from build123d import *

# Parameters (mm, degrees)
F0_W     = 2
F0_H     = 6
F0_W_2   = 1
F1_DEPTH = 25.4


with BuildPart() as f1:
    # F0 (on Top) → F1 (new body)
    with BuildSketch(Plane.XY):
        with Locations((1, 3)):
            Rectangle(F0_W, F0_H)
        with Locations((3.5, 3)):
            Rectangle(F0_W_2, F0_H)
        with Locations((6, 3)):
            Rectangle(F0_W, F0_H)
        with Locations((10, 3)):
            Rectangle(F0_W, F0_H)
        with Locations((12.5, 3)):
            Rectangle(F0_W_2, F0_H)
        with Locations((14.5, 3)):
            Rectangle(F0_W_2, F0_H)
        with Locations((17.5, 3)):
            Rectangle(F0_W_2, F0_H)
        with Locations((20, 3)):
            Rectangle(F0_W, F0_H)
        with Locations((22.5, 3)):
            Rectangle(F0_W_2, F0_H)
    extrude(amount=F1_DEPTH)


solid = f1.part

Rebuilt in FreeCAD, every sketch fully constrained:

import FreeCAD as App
import Part
import Sketcher
from FreeCAD import Vector

doc = App.newDocument("Part")
body = doc.addObject("PartDesign::Body", "Body")
body.AllowCompound = True

sketch1 = body.newObject("Sketcher::SketchObject", "Sketch")
sketch1.AttachmentSupport = (doc.getObject("XY_Plane"), [""])
sketch1.MapMode = "FlatFace"
sketch1.addGeometry([
    Part.LineSegment(Vector(0, 6, 0), Vector(0, 0, 0)),
    Part.LineSegment(Vector(0, 0, 0), Vector(2, 0, 0)),
    Part.LineSegment(Vector(2, 0, 0), Vector(2, 6, 0)),
    Part.LineSegment(Vector(2, 6, 0), Vector(0, 6, 0)),
    Part.LineSegment(Vector(3, 6, 0), Vector(3, 0, 0)),
    Part.LineSegment(Vector(3, 0, 0), Vector(4, 0, 0)),
    Part.LineSegment(Vector(4, 0, 0), Vector(4, 6, 0)),
    Part.LineSegment(Vector(4, 6, 0), Vector(3, 6, 0)),
    Part.LineSegment(Vector(5, 6, 0), Vector(5, 0, 0)),
    Part.LineSegment(Vector(5, 0, 0), Vector(7, 0, 0)),
    Part.LineSegment(Vector(7, 0, 0), Vector(7, 6, 0)),
    Part.LineSegment(Vector(7, 6, 0), Vector(5, 6, 0)),
    Part.LineSegment(Vector(9, 6, 0), Vector(9, 0, 0)),
    Part.LineSegment(Vector(9, 0, 0), Vector(11, 0, 0)),
    Part.LineSegment(Vector(11, 0, 0), Vector(11, 6, 0)),
    Part.LineSegment(Vector(11, 6, 0), Vector(9, 6, 0)),
    Part.LineSegment(Vector(12, 6, 0), Vector(12, 0, 0)),
    Part.LineSegment(Vector(12, 0, 0), Vector(13, 0, 0)),
    Part.LineSegment(Vector(13, 0, 0), Vector(13, 6, 0)),
    Part.LineSegment(Vector(13, 6, 0), Vector(12, 6, 0)),
    Part.LineSegment(Vector(14, 6, 0), Vector(14, 0, 0)),
    Part.LineSegment(Vector(14, 0, 0), Vector(15, 0, 0)),
    Part.LineSegment(Vector(15, 0, 0), Vector(15, 6, 0)),
    Part.LineSegment(Vector(15, 6, 0), Vector(14, 6, 0)),
    Part.LineSegment(Vector(17, 6, 0), Vector(17, 0, 0)),
    Part.LineSegment(Vector(17, 0, 0), Vector(18, 0, 0)),
    Part.LineSegment(Vector(18, 0, 0), Vector(18, 6, 0)),
    Part.LineSegment(Vector(18, 6, 0), Vector(17, 6, 0)),
    Part.LineSegment(Vector(19, 6, 0), Vector(19, 0, 0)),
    Part.LineSegment(Vector(19, 0, 0), Vector(21, 0, 0)),
    Part.LineSegment(Vector(21, 0, 0), Vector(21, 6, 0)),
    Part.LineSegment(Vector(21, 6, 0), Vector(19, 6, 0)),
    Part.LineSegment(Vector(22, 6, 0), Vector(22, 0, 0)),
    Part.LineSegment(Vector(22, 0, 0), Vector(23, 0, 0)),
    Part.LineSegment(Vector(23, 0, 0), Vector(23, 6, 0)),
    Part.LineSegment(Vector(23, 6, 0), Vector(22, 6, 0)),
], False)
sketch1.addConstraint([
    Sketcher.Constraint("Coincident", 0, 2, 1, 1),
    Sketcher.Constraint("Coincident", 1, 2, 2, 1),
    Sketcher.Constraint("Coincident", 2, 2, 3, 1),
    Sketcher.Constraint("Coincident", 3, 2, 0, 1),
    Sketcher.Constraint("Coincident", 4, 2, 5, 1),
    Sketcher.Constraint("Coincident", 5, 2, 6, 1),
    Sketcher.Constraint("Coincident", 6, 2, 7, 1),
    Sketcher.Constraint("Coincident", 7, 2, 4, 1),
    Sketcher.Constraint("Coincident", 8, 2, 9, 1),
    Sketcher.Constraint("Coincident", 9, 2, 10, 1),
    Sketcher.Constraint("Coincident", 10, 2, 11, 1),
    Sketcher.Constraint("Coincident", 11, 2, 8, 1),
    Sketcher.Constraint("Coincident", 12, 2, 13, 1),
    Sketcher.Constraint("Coincident", 13, 2, 14, 1),
    Sketcher.Constraint("Coincident", 14, 2, 15, 1),
    Sketcher.Constraint("Coincident", 15, 2, 12, 1),
    Sketcher.Constraint("Coincident", 16, 2, 17, 1),
    Sketcher.Constraint("Coincident", 17, 2, 18, 1),
    Sketcher.Constraint("Coincident", 18, 2, 19, 1),
    Sketcher.Constraint("Coincident", 19, 2, 16, 1),
    Sketcher.Constraint("Coincident", 20, 2, 21, 1),
    Sketcher.Constraint("Coincident", 21, 2, 22, 1),
    Sketcher.Constraint("Coincident", 22, 2, 23, 1),
    Sketcher.Constraint("Coincident", 23, 2, 20, 1),
    Sketcher.Constraint("Coincident", 24, 2, 25, 1),
    Sketcher.Constraint("Coincident", 25, 2, 26, 1),
    Sketcher.Constraint("Coincident", 26, 2, 27, 1),
    Sketcher.Constraint("Coincident", 27, 2, 24, 1),
    Sketcher.Constraint("Coincident", 28, 2, 29, 1),
    Sketcher.Constraint("Coincident", 29, 2, 30, 1),
    Sketcher.Constraint("Coincident", 30, 2, 31, 1),
    Sketcher.Constraint("Coincident", 31, 2, 28, 1),
    Sketcher.Constraint("Coincident", 32, 2, 33, 1),
    Sketcher.Constraint("Coincident", 33, 2, 34, 1),
    Sketcher.Constraint("Coincident", 34, 2, 35, 1),
    Sketcher.Constraint("Coincident", 35, 2, 32, 1),
    Sketcher.Constraint("Vertical", 0),
    Sketcher.Constraint("Horizontal", 1),
    Sketcher.Constraint("Vertical", 2),
    Sketcher.Constraint("Horizontal", 3),
    Sketcher.Constraint("Vertical", 4),
    Sketcher.Constraint("Horizontal", 5),
    Sketcher.Constraint("Vertical", 6),
    Sketcher.Constraint("Horizontal", 7),
    Sketcher.Constraint("Vertical", 8),
    Sketcher.Constraint("Horizontal", 9),
    Sketcher.Constraint("Vertical", 10),
    Sketcher.Constraint("Horizontal", 11),
    Sketcher.Constraint("Vertical", 12),
    Sketcher.Constraint("Horizontal", 13),
    Sketcher.Constraint("Vertical", 14),
    Sketcher.Constraint("Horizontal", 15),
    Sketcher.Constraint("Vertical", 16),
    Sketcher.Constraint("Horizontal", 17),
    Sketcher.Constraint("Vertical", 18),
    Sketcher.Constraint("Horizontal", 19),
    Sketcher.Constraint("Vertical", 20),
    Sketcher.Constraint("Horizontal", 21),
    Sketcher.Constraint("Vertical", 22),
    Sketcher.Constraint("Horizontal", 23),
    Sketcher.Constraint("Vertical", 24),
    Sketcher.Constraint("Horizontal", 25),
    Sketcher.Constraint("Vertical", 26),
    Sketcher.Constraint("Horizontal", 27),
    Sketcher.Constraint("Vertical", 28),
    Sketcher.Constraint("Horizontal", 29),
    Sketcher.Constraint("Vertical", 30),
    Sketcher.Constraint("Horizontal", 31),
    Sketcher.Constraint("Vertical", 32),
    Sketcher.Constraint("Horizontal", 33),
    Sketcher.Constraint("Vertical", 34),
    Sketcher.Constraint("Horizontal", 35),
    Sketcher.Constraint("Coincident", 0, 2, -1, 1),
    Sketcher.Constraint("PointOnObject", 4, 2, -1),
    Sketcher.Constraint("PointOnObject", 8, 2, -1),
    Sketcher.Constraint("PointOnObject", 12, 2, -1),
    Sketcher.Constraint("PointOnObject", 16, 2, -1),
    Sketcher.Constraint("PointOnObject", 20, 2, -1),
    Sketcher.Constraint("PointOnObject", 24, 2, -1),
    Sketcher.Constraint("PointOnObject", 28, 2, -1),
    Sketcher.Constraint("PointOnObject", 32, 2, -1),
    Sketcher.Constraint("Horizontal", 3, 2, 6, 2),
    Sketcher.Constraint("Horizontal", 7, 2, 10, 2),
    Sketcher.Constraint("Horizontal", 11, 2, 14, 2),
    Sketcher.Constraint("Horizontal", 15, 2, 18, 2),
    Sketcher.Constraint("Horizontal", 19, 2, 22, 2),
    Sketcher.Constraint("Horizontal", 23, 2, 26, 2),
    Sketcher.Constraint("Horizontal", 27, 2, 30, 2),
    Sketcher.Constraint("Horizontal", 31, 2, 34, 2),
    Sketcher.Constraint("Equal", 3, 9),
    Sketcher.Constraint("Equal", 11, 13),
    Sketcher.Constraint("Equal", 7, 17),
    Sketcher.Constraint("Equal", 19, 21),
    Sketcher.Constraint("Equal", 23, 25),
    Sketcher.Constraint("Equal", 15, 29),
    Sketcher.Constraint("Equal", 27, 33),
    Sketcher.Constraint("DistanceX", 1, 1, 1, 2, 2.0),
    Sketcher.Constraint("DistanceX", 5, 1, 5, 2, 1.0),
    Sketcher.Constraint("DistanceY", 0, 2, 0, 1, 6.0),
    Sketcher.Constraint("DistanceX", -1, 1, 4, 2, 3.0),
    Sketcher.Constraint("DistanceX", -1, 1, 8, 2, 5.0),
    Sketcher.Constraint("DistanceX", -1, 1, 12, 2, 9.0),
    Sketcher.Constraint("DistanceX", -1, 1, 16, 2, 12.0),
    Sketcher.Constraint("DistanceX", -1, 1, 20, 2, 14.0),
    Sketcher.Constraint("DistanceX", -1, 1, 24, 2, 17.0),
    Sketcher.Constraint("DistanceX", -1, 1, 28, 2, 19.0),
    Sketcher.Constraint("DistanceX", -1, 1, 32, 2, 22.0),
])
pad1 = body.newObject("PartDesign::Pad", "Pad")
pad1.Profile = sketch1
pad1.Length = 25.4

doc.recompute()
